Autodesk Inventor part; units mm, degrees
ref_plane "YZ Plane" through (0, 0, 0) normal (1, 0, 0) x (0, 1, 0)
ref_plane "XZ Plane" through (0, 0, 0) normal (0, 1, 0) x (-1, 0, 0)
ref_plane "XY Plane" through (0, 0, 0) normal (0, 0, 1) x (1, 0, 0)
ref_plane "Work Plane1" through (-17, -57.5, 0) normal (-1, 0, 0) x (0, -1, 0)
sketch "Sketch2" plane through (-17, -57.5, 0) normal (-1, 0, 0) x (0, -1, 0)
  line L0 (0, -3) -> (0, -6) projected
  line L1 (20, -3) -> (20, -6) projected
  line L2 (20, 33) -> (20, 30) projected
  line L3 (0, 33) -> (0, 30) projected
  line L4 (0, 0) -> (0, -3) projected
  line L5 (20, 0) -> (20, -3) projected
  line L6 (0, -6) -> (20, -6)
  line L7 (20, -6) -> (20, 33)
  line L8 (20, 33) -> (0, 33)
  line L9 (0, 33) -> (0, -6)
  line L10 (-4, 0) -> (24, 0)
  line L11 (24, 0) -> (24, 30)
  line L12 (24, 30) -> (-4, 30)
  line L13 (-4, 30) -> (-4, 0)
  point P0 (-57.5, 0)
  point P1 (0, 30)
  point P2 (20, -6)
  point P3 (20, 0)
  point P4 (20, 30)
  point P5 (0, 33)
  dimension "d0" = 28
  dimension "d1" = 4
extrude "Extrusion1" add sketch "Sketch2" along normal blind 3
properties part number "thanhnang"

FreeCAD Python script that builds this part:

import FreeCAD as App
import Part
import Sketcher

V = App.Vector
Q = App.Units.Quantity

doc = App.newDocument("Part")
body = doc.addObject("PartDesign::Body", "Body")

# Sketch on YZ plane
sketch1 = body.newObject("Sketcher::SketchObject", "Sketch")
sketch1.AttachmentSupport = (doc.getObject("YZ_Plane"), [""])
sketch1.MapMode = "FlatFace"
sketch1.AttachmentOffset = App.Placement(V(0, 0, -17), App.Rotation())
sketch1.addGeometry(Part.LineSegment(V(-57.5, 0, 0), V(-57.5, -6, 0)), False)
sketch1.addGeometry(Part.LineSegment(V(-57.5, -6, 0), V(-77.5, -6, 0)), False)
sketch1.addGeometry(Part.LineSegment(V(-77.5, -6, 0), V(-77.5, 0, 0)), False)
sketch1.addGeometry(Part.LineSegment(V(-77.5, 0, 0), V(-81.5, 0, 0)), False)
sketch1.addGeometry(Part.LineSegment(V(-81.5, 0, 0), V(-81.5, 30, 0)), False)
sketch1.addGeometry(Part.LineSegment(V(-81.5, 30, 0), V(-77.5, 30, 0)), False)
sketch1.addGeometry(Part.LineSegment(V(-77.5, 30, 0), V(-77.5, 33, 0)), False)
sketch1.addGeometry(Part.LineSegment(V(-77.5, 33, 0), V(-57.5, 33, 0)), False)
sketch1.addGeometry(Part.LineSegment(V(-57.5, 33, 0), V(-57.5, 30, 0)), False)
sketch1.addGeometry(Part.LineSegment(V(-57.5, 30, 0), V(-53.5, 30, 0)), False)
sketch1.addGeometry(Part.LineSegment(V(-53.5, 30, 0), V(-53.5, 0, 0)), False)
sketch1.addGeometry(Part.LineSegment(V(-53.5, 0, 0), V(-57.5, 0, 0)), False)
sketch1.addConstraint(Sketcher.Constraint("Coincident", 0, 2, 1, 1))
sketch1.addConstraint(Sketcher.Constraint("Coincident", 1, 2, 2, 1))
sketch1.addConstraint(Sketcher.Constraint("Coincident", 2, 2, 3, 1))
sketch1.addConstraint(Sketcher.Constraint("Coincident", 3, 2, 4, 1))
sketch1.addConstraint(Sketcher.Constraint("Coincident", 4, 2, 5, 1))
sketch1.addConstraint(Sketcher.Constraint("Coincident", 5, 2, 6, 1))
sketch1.addConstraint(Sketcher.Constraint("Coincident", 6, 2, 7, 1))
sketch1.addConstraint(Sketcher.Constraint("Coincident", 7, 2, 8, 1))
sketch1.addConstraint(Sketcher.Constraint("Coincident", 8, 2, 9, 1))
sketch1.addConstraint(Sketcher.Constraint("Coincident", 9, 2, 10, 1))
sketch1.addConstraint(Sketcher.Constraint("Coincident", 10, 2, 11, 1))
sketch1.addConstraint(Sketcher.Constraint("Coincident", 11, 2, 0, 1))
sketch1.addConstraint(Sketcher.Constraint("Vertical", 0))
sketch1.addConstraint(Sketcher.Constraint("Horizontal", 1))
sketch1.addConstraint(Sketcher.Constraint("Vertical", 2))
sketch1.addConstraint(Sketcher.Constraint("Horizontal", 3))
sketch1.addConstraint(Sketcher.Constraint("Vertical", 4))
sketch1.addConstraint(Sketcher.Constraint("Horizontal", 5))
sketch1.addConstraint(Sketcher.Constraint("Vertical", 6))
sketch1.addConstraint(Sketcher.Constraint("Horizontal", 7))
sketch1.addConstraint(Sketcher.Constraint("Vertical", 8))
sketch1.addConstraint(Sketcher.Constraint("Horizontal", 9))
sketch1.addConstraint(Sketcher.Constraint("Vertical", 10))
sketch1.addConstraint(Sketcher.Constraint("Horizontal", 11))
sketch1.addConstraint(Sketcher.Constraint("PointOnObject", 2, 2, -1))
sketch1.addConstraint(Sketcher.Constraint("PointOnObject", 10, 2, -1))
sketch1.addConstraint(Sketcher.Constraint("Horizontal", 5, 2, 8, 2))
sketch1.addConstraint(Sketcher.Constraint("Vertical", 2, 2, 5, 2))
sketch1.addConstraint(Sketcher.Constraint("Vertical", 0, 2, 7, 2))
sketch1.addConstraint(Sketcher.Constraint("Equal", 5, 9))
sketch1.addConstraint(Sketcher.Constraint("DistanceX", 3, 2, 3, 1, Q("4 mm")))
sketch1.addConstraint(Sketcher.Constraint("DistanceX", 4, 2, 9, 2, Q("28 mm")))
sketch1.addConstraint(Sketcher.Constraint("DistanceY", 0, 2, 0, 1, Q("6 mm")))
sketch1.addConstraint(Sketcher.Constraint("DistanceY", 4, 1, 4, 2, Q("30 mm")))
sketch1.addConstraint(Sketcher.Constraint("DistanceY", 6, 1, 6, 2, Q("3 mm")))
sketch1.addConstraint(Sketcher.Constraint("DistanceX", 0, 2, -1, 1, Q("57.5 mm")))
pad1 = body.newObject("PartDesign::Pad", "Pad")
pad1.Profile = sketch1
pad1.Length = 3
pad1.Reversed = True

doc.recompute()
